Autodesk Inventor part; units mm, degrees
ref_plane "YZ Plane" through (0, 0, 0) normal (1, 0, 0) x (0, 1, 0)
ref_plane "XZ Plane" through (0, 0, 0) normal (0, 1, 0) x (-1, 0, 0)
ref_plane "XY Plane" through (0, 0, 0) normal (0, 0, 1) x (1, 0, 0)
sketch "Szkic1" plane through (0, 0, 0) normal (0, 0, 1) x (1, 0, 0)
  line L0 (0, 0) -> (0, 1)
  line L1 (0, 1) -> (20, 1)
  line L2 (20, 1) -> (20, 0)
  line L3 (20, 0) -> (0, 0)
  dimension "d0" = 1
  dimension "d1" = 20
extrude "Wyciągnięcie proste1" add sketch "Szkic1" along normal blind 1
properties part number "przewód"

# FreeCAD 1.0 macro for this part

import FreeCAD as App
import Part
import Sketcher

V = App.Vector
Q = App.Units.Quantity

doc = App.newDocument("Part")
body = doc.addObject("PartDesign::Body", "Body")

# Sketch on XY plane
sketch1 = doc.addObject("Sketcher::SketchObject", "Sketch")
body.addObject(sketch1)
sketch1.AttachmentSupport = (doc.XY_Plane, [""])
sketch1.MapMode = "FlatFace"
sketch1.addGeometry(Part.LineSegment(V(0, 1, 0), V(0, 0, 0)), False)
sketch1.addGeometry(Part.LineSegment(V(0, 0, 0), V(20, 0, 0)), False)
sketch1.addGeometry(Part.LineSegment(V(20, 0, 0), V(20, 1, 0)), False)
sketch1.addGeometry(Part.LineSegment(V(20, 1, 0), V(0, 1, 0)), False)
sketch1.addConstraint(Sketcher.Constraint("Coincident", 0, 2, 1, 1))
sketch1.addConstraint(Sketcher.Constraint("Coincident", 1, 2, 2, 1))
sketch1.addConstraint(Sketcher.Constraint("Coincident", 2, 2, 3, 1))
sketch1.addConstraint(Sketcher.Constraint("Coincident", 3, 2, 0, 1))
sketch1.addConstraint(Sketcher.Constraint("Vertical", 0))
sketch1.addConstraint(Sketcher.Constraint("Horizontal", 1))
sketch1.addConstraint(Sketcher.Constraint("Vertical", 2))
sketch1.addConstraint(Sketcher.Constraint("Horizontal", 3))
sketch1.addConstraint(Sketcher.Constraint("Coincident", 0, 2, -1, 1))
sketch1.addConstraint(Sketcher.Constraint("DistanceX", 1, 1, 1, 2, Q("20 mm")))
sketch1.addConstraint(Sketcher.Constraint("DistanceY", 0, 2, 0, 1, Q("1 mm")))
pad1 = doc.addObject("PartDesign::Pad", "Pad")
body.addObject(pad1)
pad1.Profile = sketch1
pad1.Length = 1

doc.recompute()
